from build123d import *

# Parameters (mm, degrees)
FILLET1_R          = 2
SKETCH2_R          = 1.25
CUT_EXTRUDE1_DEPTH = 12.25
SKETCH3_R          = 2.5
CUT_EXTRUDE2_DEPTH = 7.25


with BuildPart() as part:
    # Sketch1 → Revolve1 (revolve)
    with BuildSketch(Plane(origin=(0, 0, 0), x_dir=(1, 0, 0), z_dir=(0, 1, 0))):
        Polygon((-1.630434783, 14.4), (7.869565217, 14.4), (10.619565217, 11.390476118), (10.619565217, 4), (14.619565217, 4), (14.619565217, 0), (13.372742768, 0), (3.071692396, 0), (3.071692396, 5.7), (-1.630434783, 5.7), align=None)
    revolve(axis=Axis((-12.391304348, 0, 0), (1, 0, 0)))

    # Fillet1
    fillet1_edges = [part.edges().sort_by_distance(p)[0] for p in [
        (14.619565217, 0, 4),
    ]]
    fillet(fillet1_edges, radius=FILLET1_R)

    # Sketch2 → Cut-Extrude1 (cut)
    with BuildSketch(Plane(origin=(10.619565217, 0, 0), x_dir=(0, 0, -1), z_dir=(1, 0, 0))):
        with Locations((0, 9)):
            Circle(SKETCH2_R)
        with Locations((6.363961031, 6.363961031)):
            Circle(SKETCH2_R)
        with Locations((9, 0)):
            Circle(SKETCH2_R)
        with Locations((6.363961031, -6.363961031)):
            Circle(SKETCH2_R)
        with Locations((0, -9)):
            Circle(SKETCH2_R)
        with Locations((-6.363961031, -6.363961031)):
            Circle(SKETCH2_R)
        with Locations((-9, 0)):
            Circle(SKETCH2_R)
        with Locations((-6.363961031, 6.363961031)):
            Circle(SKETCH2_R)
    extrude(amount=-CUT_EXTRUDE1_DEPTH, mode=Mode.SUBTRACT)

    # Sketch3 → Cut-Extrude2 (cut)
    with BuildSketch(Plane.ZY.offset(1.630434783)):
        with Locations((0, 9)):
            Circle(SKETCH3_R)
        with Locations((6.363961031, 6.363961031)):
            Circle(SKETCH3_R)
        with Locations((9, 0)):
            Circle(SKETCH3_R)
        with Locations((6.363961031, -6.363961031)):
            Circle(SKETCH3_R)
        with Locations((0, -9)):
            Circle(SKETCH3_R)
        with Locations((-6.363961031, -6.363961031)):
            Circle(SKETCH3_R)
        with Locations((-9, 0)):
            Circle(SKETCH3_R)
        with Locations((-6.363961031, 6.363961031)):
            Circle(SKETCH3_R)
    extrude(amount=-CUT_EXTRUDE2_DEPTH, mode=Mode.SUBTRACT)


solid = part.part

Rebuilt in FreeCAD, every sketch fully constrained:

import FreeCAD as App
import Part
import Sketcher
from FreeCAD import Vector
Q = App.Units.Quantity


def edges_at(feature, points):
    """Names of the edges that pass closest to the given points."""
    edges = feature.Shape.Edges
    near = lambda p: min(range(len(edges)), key=lambda i: edges[i].distToShape(Part.Vertex(*p))[0])
    return sorted({f"Edge{near(p) + 1}" for p in points})


def add_polygon(sketch, points):
    """Adds a closed chain of lines whose ends are joined by coincident constraints."""
    first, n = sketch.GeometryCount, len(points)
    for a, b in zip(points, points[1:] + points[:1]):
        sketch.addGeometry(Part.LineSegment(App.Vector(*a, 0), App.Vector(*b, 0)), False)
    for i in range(n):
        sketch.addConstraint(Sketcher.Constraint("Coincident", first + i, 2, first + (i + 1) % n, 1))

doc = App.newDocument("Part")
params = doc.addObject("Spreadsheet::Sheet", "Params")
for row, (alias, value) in enumerate([
    ("sketch1_width", "4 mm"),
    ("sketch1_width2", "9.5 mm"),
    ("sketch1_height", "8.7 mm"),
    ("sketch1_height2", "5.7 mm"),
    ("revolution_angle", "360 deg"),
    ("fillet_radius", "2 mm"),
    ("sketch2_diameter", "2.5 mm"),
    ("pocket1_length", "12.25 mm"),
    ("sketch3_diameter", "5 mm"),
    ("pocket2_length", "7.25 mm"),
], start=1):
    params.set(f"A{row}", alias)
    params.set(f"B{row}", "=" + value)
    params.setAlias(f"B{row}", alias)

body = doc.addObject("PartDesign::Body", "Body")

sketch1 = body.newObject("Sketcher::SketchObject", "Sketch")
sketch1.AttachmentSupport = (doc.getObject("XZ_Plane"), [""])
sketch1.MapMode = "FlatFace"
add_polygon(sketch1, [(7.9, -14.4), (-1.6, -14.4), (-1.6, -5.7), (3.1, -5.7), (3.1, 0), (14.6, 0), (14.6, -4), (10.6, -4), (10.6, -11.4)])
sketch1.addConstraint(Sketcher.Constraint("Horizontal", 0))
sketch1.addConstraint(Sketcher.Constraint("Vertical", 1))
sketch1.addConstraint(Sketcher.Constraint("Horizontal", 2))
sketch1.addConstraint(Sketcher.Constraint("Vertical", 3))
sketch1.addConstraint(Sketcher.Constraint("Horizontal", 4))
sketch1.addConstraint(Sketcher.Constraint("Vertical", 5))
sketch1.addConstraint(Sketcher.Constraint("Horizontal", 6))
sketch1.addConstraint(Sketcher.Constraint("Vertical", 7))
sketch1.addConstraint(Sketcher.Constraint("PointOnObject", 3, 2, -1))
sketch1.addConstraint(Sketcher.Constraint("Equal", 6, 5))
sketch1.addConstraint(Sketcher.Constraint("DistanceX", 6, 2, 6, 1, 4.0))
sketch1.addConstraint(Sketcher.Constraint("DistanceX", 0, 2, 0, 1, 9.5))
sketch1.addConstraint(Sketcher.Constraint("DistanceY", 1, 1, 1, 2, 8.7))
sketch1.addConstraint(Sketcher.Constraint("DistanceY", 3, 1, 3, 2, 5.7))
sketch1.addConstraint(Sketcher.Constraint("Angle", 8, Q("-132.42 deg")))
sketch1.addConstraint(Sketcher.Constraint("DistanceX", 1, 2, 4, 2, 16.25))
sketch1.addConstraint(Sketcher.Constraint("DistanceX", 2, 1, 2, 2, 4.702127))
sketch1.addConstraint(Sketcher.Constraint("DistanceX", 0, 2, -1, 1, 1.630435))
sketch1.setExpression("Constraints[19]", "Params.sketch1_width")
sketch1.setExpression("Constraints[20]", "Params.sketch1_width2")
sketch1.setExpression("Constraints[21]", "Params.sketch1_height")
sketch1.setExpression("Constraints[22]", "Params.sketch1_height2")
revolution = body.newObject("PartDesign::Revolution", "Revolution")
revolution.Profile = sketch1
revolution.ReferenceAxis = (sketch1, ["H_Axis"])
revolution.setExpression("Angle", "Params.revolution_angle")
doc.recompute()

fillet = body.newObject("PartDesign::Fillet", "Fillet")
fillet.Base = (revolution, edges_at(revolution, [(14.62, 0, 4)]))
fillet.setExpression("Radius", "Params.fillet_radius")

sketch2 = body.newObject("Sketcher::SketchObject", "Sketch001")
sketch2.AttachmentSupport = (doc.getObject("YZ_Plane"), [""])
sketch2.MapMode = "FlatFace"
sketch2.AttachmentOffset = App.Placement(Vector(0, 0, 10.619565), App.Rotation())
sketch2.addGeometry(Part.Circle(Vector(9, 0, 0), Vector(0, 0, 1), 1.2), False)
sketch2.addGeometry(Part.Circle(Vector(6.4, -6.4, 0), Vector(0, 0, 1), 1.2), False)
sketch2.addGeometry(Part.Circle(Vector(0, -9, 0), Vector(0, 0, 1), 1.2), False)
sketch2.addGeometry(Part.Circle(Vector(-6.4, -6.4, 0), Vector(0, 0, 1), 1.2), False)
sketch2.addGeometry(Part.Circle(Vector(-9, 0, 0), Vector(0, 0, 1), 1.2), False)
sketch2.addGeometry(Part.Circle(Vector(-6.4, 6.4, 0), Vector(0, 0, 1), 1.2), False)
sketch2.addGeometry(Part.Circle(Vector(0, 9, 0), Vector(0, 0, 1), 1.2), False)
sketch2.addGeometry(Part.Circle(Vector(6.4, 6.4, 0), Vector(0, 0, 1), 1.2), False)
sketch2.addConstraint(Sketcher.Constraint("Equal", 0, 1))
sketch2.addConstraint(Sketcher.Constraint("Equal", 1, 2))
sketch2.addConstraint(Sketcher.Constraint("Equal", 2, 3))
sketch2.addConstraint(Sketcher.Constraint("Equal", 3, 4))
sketch2.addConstraint(Sketcher.Constraint("Equal", 4, 5))
sketch2.addConstraint(Sketcher.Constraint("Equal", 5, 6))
sketch2.addConstraint(Sketcher.Constraint("Equal", 6, 7))
sketch2.addConstraint(Sketcher.Constraint("Symmetric", 0, 3, 4, 3, -1, 1))
sketch2.addConstraint(Sketcher.Constraint("Symmetric", 1, 3, 5, 3, -1, 1))
sketch2.addConstraint(Sketcher.Constraint("Symmetric", 2, 3, 6, 3, -1, 1))
sketch2.addConstraint(Sketcher.Constraint("Symmetric", 3, 3, 7, 3, -1, 1))
sketch2.addConstraint(Sketcher.Constraint("Symmetric", 1, 3, 3, 3, -2))
sketch2.addConstraint(Sketcher.Constraint("PointOnObject", 0, 3, -1))
sketch2.addConstraint(Sketcher.Constraint("PointOnObject", 2, 3, -2))
sketch2.addConstraint(Sketcher.Constraint("Diameter", 0, 2.5))
sketch2.addConstraint(Sketcher.Constraint("DistanceX", -1, 1, 0, 3, 9.0))
sketch2.addConstraint(Sketcher.Constraint("DistanceY", 2, 3, -1, 1, 9.0))
sketch2.addConstraint(Sketcher.Constraint("DistanceX", -1, 1, 1, 3, 6.363961))
sketch2.addConstraint(Sketcher.Constraint("DistanceY", 1, 3, -1, 1, 6.363961))
sketch2.setExpression("Constraints[14]", "Params.sketch2_diameter")
pocket1 = body.newObject("PartDesign::Pocket", "Pocket")
pocket1.Profile = sketch2
pocket1.setExpression("Length", "Params.pocket1_length")

sketch3 = body.newObject("Sketcher::SketchObject", "Sketch002")
sketch3.AttachmentSupport = (doc.getObject("YZ_Plane"), [""])
sketch3.MapMode = "FlatFace"
sketch3.AttachmentOffset = App.Placement(Vector(0, 0, -1.630435), App.Rotation())
sketch3.addGeometry(Part.Circle(Vector(9, 0, 0), Vector(0, 0, 1), 2.5), False)
sketch3.addGeometry(Part.Circle(Vector(6.4, 6.4, 0), Vector(0, 0, 1), 2.5), False)
sketch3.addGeometry(Part.Circle(Vector(0, 9, 0), Vector(0, 0, 1), 2.5), False)
sketch3.addGeometry(Part.Circle(Vector(-6.4, 6.4, 0), Vector(0, 0, 1), 2.5), False)
sketch3.addGeometry(Part.Circle(Vector(-9, 0, 0), Vector(0, 0, 1), 2.5), False)
sketch3.addGeometry(Part.Circle(Vector(-6.4, -6.4, 0), Vector(0, 0, 1), 2.5), False)
sketch3.addGeometry(Part.Circle(Vector(0, -9, 0), Vector(0, 0, 1), 2.5), False)
sketch3.addGeometry(Part.Circle(Vector(6.4, -6.4, 0), Vector(0, 0, 1), 2.5), False)
sketch3.addConstraint(Sketcher.Constraint("Equal", 0, 1))
sketch3.addConstraint(Sketcher.Constraint("Equal", 1, 2))
sketch3.addConstraint(Sketcher.Constraint("Equal", 2, 3))
sketch3.addConstraint(Sketcher.Constraint("Equal", 3, 4))
sketch3.addConstraint(Sketcher.Constraint("Equal", 4, 5))
sketch3.addConstraint(Sketcher.Constraint("Equal", 5, 6))
sketch3.addConstraint(Sketcher.Constraint("Equal", 6, 7))
sketch3.addConstraint(Sketcher.Constraint("Symmetric", 0, 3, 4, 3, -1, 1))
sketch3.addConstraint(Sketcher.Constraint("Symmetric", 1, 3, 5, 3, -1, 1))
sketch3.addConstraint(Sketcher.Constraint("Symmetric", 2, 3, 6, 3, -1, 1))
sketch3.addConstraint(Sketcher.Constraint("Symmetric", 3, 3, 7, 3, -1, 1))
sketch3.addConstraint(Sketcher.Constraint("Symmetric", 1, 3, 3, 3, -2))
sketch3.addConstraint(Sketcher.Constraint("PointOnObject", 0, 3, -1))
sketch3.addConstraint(Sketcher.Constraint("PointOnObject", 2, 3, -2))
sketch3.addConstraint(Sketcher.Constraint("Diameter", 0, 5.0))
sketch3.addConstraint(Sketcher.Constraint("DistanceX", -1, 1, 0, 3, 9.0))
sketch3.addConstraint(Sketcher.Constraint("DistanceY", -1, 1, 2, 3, 9.0))
sketch3.addConstraint(Sketcher.Constraint("DistanceX", -1, 1, 1, 3, 6.363961))
sketch3.addConstraint(Sketcher.Constraint("DistanceY", -1, 1, 1, 3, 6.363961))
sketch3.setExpression("Constraints[14]", "Params.sketch3_diameter")
pocket2 = body.newObject("PartDesign::Pocket", "Pocket001")
pocket2.Profile = sketch3
pocket2.setExpression("Length", "Params.pocket2_length")
pocket2.Reversed = True

doc.recompute()
